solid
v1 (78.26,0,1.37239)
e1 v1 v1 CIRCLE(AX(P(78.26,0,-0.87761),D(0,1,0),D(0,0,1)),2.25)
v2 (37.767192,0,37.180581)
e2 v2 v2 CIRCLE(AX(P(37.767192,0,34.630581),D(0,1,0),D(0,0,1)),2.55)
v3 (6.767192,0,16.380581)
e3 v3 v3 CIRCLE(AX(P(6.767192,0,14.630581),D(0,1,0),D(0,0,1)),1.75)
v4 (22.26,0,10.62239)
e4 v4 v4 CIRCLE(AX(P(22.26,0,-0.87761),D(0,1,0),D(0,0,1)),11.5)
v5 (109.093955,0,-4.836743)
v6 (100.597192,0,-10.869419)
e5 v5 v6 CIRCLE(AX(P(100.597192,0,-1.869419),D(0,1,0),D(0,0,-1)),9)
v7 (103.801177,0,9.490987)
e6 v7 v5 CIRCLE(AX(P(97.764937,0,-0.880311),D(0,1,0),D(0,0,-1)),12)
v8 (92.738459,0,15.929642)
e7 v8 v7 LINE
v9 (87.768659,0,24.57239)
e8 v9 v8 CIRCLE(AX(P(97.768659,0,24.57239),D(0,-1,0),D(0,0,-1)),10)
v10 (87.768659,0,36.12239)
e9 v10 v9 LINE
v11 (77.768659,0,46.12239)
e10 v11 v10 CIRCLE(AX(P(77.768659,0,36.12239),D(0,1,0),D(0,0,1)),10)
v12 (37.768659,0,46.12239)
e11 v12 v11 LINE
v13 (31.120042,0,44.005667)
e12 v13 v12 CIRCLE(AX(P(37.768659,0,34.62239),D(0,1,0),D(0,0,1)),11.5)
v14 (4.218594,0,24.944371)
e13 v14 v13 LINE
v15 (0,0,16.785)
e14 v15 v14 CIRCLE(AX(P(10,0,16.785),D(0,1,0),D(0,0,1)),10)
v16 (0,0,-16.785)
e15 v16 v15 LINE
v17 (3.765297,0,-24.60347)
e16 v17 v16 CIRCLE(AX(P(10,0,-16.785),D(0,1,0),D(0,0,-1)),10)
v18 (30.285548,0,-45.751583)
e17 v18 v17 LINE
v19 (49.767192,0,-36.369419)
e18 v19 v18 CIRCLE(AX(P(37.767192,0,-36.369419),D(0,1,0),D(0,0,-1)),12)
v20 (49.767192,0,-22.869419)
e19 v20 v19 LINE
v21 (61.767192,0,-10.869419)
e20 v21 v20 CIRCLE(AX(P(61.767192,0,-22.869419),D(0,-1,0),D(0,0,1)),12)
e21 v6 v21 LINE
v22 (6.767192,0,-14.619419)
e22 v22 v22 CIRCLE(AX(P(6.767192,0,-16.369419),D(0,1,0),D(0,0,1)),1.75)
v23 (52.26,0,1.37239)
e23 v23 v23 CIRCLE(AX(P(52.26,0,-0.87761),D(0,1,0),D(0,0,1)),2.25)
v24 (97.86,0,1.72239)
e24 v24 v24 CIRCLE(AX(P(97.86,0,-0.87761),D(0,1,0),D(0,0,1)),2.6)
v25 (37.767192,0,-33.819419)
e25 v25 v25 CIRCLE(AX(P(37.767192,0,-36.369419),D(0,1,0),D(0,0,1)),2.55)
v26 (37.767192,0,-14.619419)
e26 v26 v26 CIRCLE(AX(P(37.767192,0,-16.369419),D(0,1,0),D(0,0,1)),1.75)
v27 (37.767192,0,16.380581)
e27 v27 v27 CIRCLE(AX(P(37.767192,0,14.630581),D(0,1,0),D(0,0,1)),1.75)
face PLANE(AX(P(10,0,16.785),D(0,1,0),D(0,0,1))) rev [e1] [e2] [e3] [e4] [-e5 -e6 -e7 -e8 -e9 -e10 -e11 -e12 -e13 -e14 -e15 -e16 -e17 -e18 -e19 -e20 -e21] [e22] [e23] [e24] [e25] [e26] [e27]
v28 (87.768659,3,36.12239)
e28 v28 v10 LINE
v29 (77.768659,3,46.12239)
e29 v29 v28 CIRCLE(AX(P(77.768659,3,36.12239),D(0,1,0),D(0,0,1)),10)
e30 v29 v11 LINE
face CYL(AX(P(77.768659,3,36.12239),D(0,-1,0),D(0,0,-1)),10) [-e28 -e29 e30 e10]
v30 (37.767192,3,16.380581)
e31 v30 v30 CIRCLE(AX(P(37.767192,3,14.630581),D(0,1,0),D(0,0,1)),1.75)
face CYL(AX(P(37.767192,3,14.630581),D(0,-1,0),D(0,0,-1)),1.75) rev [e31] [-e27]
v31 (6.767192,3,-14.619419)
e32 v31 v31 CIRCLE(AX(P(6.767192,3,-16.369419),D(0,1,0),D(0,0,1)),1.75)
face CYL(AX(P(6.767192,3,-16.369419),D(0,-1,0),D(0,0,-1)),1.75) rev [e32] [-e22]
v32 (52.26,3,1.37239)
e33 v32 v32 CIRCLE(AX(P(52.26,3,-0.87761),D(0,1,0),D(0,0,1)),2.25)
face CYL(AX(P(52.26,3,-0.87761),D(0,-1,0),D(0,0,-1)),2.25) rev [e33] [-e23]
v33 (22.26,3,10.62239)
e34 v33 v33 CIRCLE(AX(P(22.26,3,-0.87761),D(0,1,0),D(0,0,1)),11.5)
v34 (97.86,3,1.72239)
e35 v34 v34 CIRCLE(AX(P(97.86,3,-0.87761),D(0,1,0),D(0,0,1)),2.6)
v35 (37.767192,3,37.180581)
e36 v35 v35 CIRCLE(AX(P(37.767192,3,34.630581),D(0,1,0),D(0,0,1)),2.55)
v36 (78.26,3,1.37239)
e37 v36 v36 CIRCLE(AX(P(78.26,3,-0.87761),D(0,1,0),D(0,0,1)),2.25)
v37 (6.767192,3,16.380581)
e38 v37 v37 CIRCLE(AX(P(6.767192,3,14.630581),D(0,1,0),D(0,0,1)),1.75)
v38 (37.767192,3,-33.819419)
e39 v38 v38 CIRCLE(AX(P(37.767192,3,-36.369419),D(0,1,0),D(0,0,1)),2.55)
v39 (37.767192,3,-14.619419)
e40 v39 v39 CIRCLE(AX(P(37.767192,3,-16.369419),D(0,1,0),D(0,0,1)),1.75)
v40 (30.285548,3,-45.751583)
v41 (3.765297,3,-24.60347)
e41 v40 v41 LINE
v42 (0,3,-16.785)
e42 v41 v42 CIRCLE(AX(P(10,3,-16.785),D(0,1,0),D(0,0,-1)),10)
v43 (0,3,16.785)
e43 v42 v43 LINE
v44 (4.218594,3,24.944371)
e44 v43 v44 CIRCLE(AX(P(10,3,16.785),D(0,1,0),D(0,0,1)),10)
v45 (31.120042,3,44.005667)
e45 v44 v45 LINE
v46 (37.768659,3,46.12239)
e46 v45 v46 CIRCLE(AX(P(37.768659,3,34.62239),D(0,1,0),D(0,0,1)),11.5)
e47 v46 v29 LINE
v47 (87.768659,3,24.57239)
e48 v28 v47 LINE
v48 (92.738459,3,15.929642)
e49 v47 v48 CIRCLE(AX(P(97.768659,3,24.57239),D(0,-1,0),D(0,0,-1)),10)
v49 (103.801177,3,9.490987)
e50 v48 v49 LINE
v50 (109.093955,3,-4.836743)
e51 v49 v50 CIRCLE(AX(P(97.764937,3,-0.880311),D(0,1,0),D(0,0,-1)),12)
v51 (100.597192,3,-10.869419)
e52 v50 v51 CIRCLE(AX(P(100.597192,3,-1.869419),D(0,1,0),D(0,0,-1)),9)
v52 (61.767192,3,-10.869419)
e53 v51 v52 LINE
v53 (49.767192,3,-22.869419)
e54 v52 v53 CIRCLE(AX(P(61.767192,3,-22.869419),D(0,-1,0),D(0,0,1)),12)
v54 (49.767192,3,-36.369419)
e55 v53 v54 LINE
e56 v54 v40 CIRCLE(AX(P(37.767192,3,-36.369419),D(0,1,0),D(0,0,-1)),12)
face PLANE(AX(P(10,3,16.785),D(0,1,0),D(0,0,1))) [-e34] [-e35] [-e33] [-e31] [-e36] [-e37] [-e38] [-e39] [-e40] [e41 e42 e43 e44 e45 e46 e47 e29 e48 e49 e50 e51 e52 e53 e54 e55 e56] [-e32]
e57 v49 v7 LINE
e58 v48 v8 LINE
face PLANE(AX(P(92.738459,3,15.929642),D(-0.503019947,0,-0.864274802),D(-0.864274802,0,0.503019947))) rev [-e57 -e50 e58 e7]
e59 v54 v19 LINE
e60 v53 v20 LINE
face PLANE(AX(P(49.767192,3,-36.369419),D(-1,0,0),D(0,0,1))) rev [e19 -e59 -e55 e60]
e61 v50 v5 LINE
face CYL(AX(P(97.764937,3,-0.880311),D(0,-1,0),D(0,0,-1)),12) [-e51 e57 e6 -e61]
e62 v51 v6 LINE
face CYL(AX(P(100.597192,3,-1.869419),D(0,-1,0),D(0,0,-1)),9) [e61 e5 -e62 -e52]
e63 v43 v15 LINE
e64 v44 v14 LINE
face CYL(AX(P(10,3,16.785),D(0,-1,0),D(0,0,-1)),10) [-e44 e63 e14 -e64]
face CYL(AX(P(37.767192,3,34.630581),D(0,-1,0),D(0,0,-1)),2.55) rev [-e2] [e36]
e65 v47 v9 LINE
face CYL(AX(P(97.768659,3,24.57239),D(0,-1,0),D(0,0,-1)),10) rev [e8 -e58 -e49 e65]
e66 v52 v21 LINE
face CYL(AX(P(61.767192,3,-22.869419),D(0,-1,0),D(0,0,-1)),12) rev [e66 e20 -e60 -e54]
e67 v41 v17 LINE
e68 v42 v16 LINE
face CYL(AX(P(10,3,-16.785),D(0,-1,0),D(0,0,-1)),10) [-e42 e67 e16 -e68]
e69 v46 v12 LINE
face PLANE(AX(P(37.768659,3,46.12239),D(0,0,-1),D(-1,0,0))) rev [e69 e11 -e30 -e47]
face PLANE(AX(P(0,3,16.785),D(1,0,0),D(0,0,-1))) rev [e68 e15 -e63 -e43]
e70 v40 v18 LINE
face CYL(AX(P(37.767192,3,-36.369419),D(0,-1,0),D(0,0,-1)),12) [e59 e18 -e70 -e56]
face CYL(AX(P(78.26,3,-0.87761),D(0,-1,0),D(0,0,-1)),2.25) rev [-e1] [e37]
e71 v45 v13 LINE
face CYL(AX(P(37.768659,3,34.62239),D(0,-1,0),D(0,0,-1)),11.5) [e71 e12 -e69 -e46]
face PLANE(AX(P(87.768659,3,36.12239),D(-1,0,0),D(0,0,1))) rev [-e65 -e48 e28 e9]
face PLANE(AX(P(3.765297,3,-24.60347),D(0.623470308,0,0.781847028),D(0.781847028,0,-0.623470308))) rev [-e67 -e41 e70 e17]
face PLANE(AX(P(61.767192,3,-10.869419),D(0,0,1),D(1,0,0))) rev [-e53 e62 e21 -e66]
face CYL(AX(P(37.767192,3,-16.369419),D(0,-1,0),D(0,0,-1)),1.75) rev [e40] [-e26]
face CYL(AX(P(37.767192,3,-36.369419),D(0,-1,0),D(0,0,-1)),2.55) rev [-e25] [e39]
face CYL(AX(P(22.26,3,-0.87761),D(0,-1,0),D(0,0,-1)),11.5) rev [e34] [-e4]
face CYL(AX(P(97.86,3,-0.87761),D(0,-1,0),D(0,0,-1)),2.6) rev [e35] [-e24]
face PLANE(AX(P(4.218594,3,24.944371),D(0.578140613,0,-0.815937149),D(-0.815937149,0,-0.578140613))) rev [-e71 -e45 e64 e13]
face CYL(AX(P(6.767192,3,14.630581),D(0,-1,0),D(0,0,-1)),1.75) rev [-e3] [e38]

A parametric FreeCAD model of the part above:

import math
import FreeCAD as App
import Part
import Sketcher
Q = App.Units.Quantity

doc = App.newDocument("Part")
body = doc.addObject("PartDesign::Body", "Body")

sketch1 = body.newObject("Sketcher::SketchObject", "Sketch")
sketch1.AttachmentSupport = (doc.getObject("XZ_Plane"), [""])
sketch1.MapMode = "FlatFace"
sketch1.addGeometry([
    Part.LineSegment(App.Vector(0, -16.8, 0), App.Vector(0, 16.8, 0)),
    Part.ArcOfCircle(Part.Circle(App.Vector(10, 16.8, 0), App.Vector(0, 0, 1), 10), math.radians(125), math.radians(180)),
    Part.LineSegment(App.Vector(4.2, 24.9, 0), App.Vector(31.1, 44, 0)),
    Part.ArcOfCircle(Part.Circle(App.Vector(37.8, 34.6, 0), App.Vector(0, 0, 1), 11.5), math.radians(90), math.radians(125)),
    Part.LineSegment(App.Vector(37.8, 46.1, 0), App.Vector(77.8, 46.1, 0)),
    Part.ArcOfCircle(Part.Circle(App.Vector(77.8, 36.1, 0), App.Vector(0, 0, 1), 10), math.radians(0), math.radians(90)),
    Part.LineSegment(App.Vector(87.8, 36.1, 0), App.Vector(87.8, 24.6, 0)),
    Part.ArcOfCircle(Part.Circle(App.Vector(97.8, 24.6, 0), App.Vector(0, 0, 1), 10), math.radians(-180), math.radians(-120)),
    Part.LineSegment(App.Vector(92.7, 15.9, 0), App.Vector(103.8, 9.5, 0)),
    Part.ArcOfCircle(Part.Circle(App.Vector(97.8, -0.9, 0), App.Vector(0, 0, 1), 12), math.radians(-19), math.radians(60)),
    Part.ArcOfCircle(Part.Circle(App.Vector(100.6, -1.9, 0), App.Vector(0, 0, 1), 9), math.radians(-90), math.radians(-19)),
    Part.LineSegment(App.Vector(100.6, -10.9, 0), App.Vector(61.8, -10.9, 0)),
    Part.ArcOfCircle(Part.Circle(App.Vector(61.8, -22.9, 0), App.Vector(0, 0, 1), 12), math.radians(90), math.radians(180)),
    Part.LineSegment(App.Vector(49.8, -22.9, 0), App.Vector(49.8, -36.4, 0)),
    Part.ArcOfCircle(Part.Circle(App.Vector(37.8, -36.4, 0), App.Vector(0, 0, 1), 12), math.radians(-129), math.radians(0)),
    Part.LineSegment(App.Vector(30.3, -45.8, 0), App.Vector(3.8, -24.6, 0)),
    Part.ArcOfCircle(Part.Circle(App.Vector(10, -16.8, 0), App.Vector(0, 0, 1), 10), math.radians(180), math.radians(231)),
    Part.Circle(App.Vector(37.8, 34.6, 0), App.Vector(0, 0, 1), 2.5),
    Part.Circle(App.Vector(37.8, 14.6, 0), App.Vector(0, 0, 1), 1.8),
    Part.Circle(App.Vector(6.8, 14.6, 0), App.Vector(0, 0, 1), 1.8),
    Part.Circle(App.Vector(97.9, -0.9, 0), App.Vector(0, 0, 1), 2.6),
    Part.Circle(App.Vector(78.3, -0.9, 0), App.Vector(0, 0, 1), 2.2),
    Part.Circle(App.Vector(52.3, -0.9, 0), App.Vector(0, 0, 1), 2.2),
    Part.Circle(App.Vector(37.8, -16.4, 0), App.Vector(0, 0, 1), 1.8),
    Part.Circle(App.Vector(22.3, -0.9, 0), App.Vector(0, 0, 1), 11.5),
    Part.Circle(App.Vector(6.8, -16.4, 0), App.Vector(0, 0, 1), 1.8),
    Part.Circle(App.Vector(37.8, -36.4, 0), App.Vector(0, 0, 1), 2.5),
], False)
sketch1.addConstraint([
    Sketcher.Constraint("Tangent", 0, 2, 1, 2),
    Sketcher.Constraint("Tangent", 1, 1, 2, 1),
    Sketcher.Constraint("Tangent", 2, 2, 3, 2),
    Sketcher.Constraint("Tangent", 3, 1, 4, 1),
    Sketcher.Constraint("Tangent", 4, 2, 5, 2),
    Sketcher.Constraint("Tangent", 5, 1, 6, 1),
    Sketcher.Constraint("Tangent", 6, 2, 7, 1),
    Sketcher.Constraint("Tangent", 7, 2, 8, 1),
    Sketcher.Constraint("Tangent", 8, 2, 9, 2),
    Sketcher.Constraint("Tangent", 9, 1, 10, 2),
    Sketcher.Constraint("Tangent", 10, 1, 11, 1),
    Sketcher.Constraint("Tangent", 11, 2, 12, 1),
    Sketcher.Constraint("Tangent", 12, 2, 13, 1),
    Sketcher.Constraint("Tangent", 13, 2, 14, 2),
    Sketcher.Constraint("Tangent", 14, 1, 15, 1),
    Sketcher.Constraint("Tangent", 15, 2, 16, 2),
    Sketcher.Constraint("Tangent", 16, 1, 0, 1),
    Sketcher.Constraint("Vertical", 0),
    Sketcher.Constraint("Horizontal", 4),
    Sketcher.Constraint("Vertical", 6),
    Sketcher.Constraint("Horizontal", 11),
    Sketcher.Constraint("Vertical", 13),
    Sketcher.Constraint("Coincident", 26, 3, 14, 3),
    Sketcher.Constraint("Equal", 1, 5),
    Sketcher.Constraint("Equal", 5, 7),
    Sketcher.Constraint("Equal", 9, 12),
    Sketcher.Constraint("Equal", 12, 14),
    Sketcher.Constraint("Equal", 7, 16),
    Sketcher.Constraint("Equal", 18, 19),
    Sketcher.Constraint("Equal", 21, 22),
    Sketcher.Constraint("Equal", 19, 23),
    Sketcher.Constraint("Equal", 3, 24),
    Sketcher.Constraint("Equal", 23, 25),
    Sketcher.Constraint("Equal", 17, 26),
    Sketcher.Constraint("Symmetric", 0, 2, 16, 1, -1, 1),
    Sketcher.Constraint("Horizontal", 18, 3, 19, 3),
    Sketcher.Constraint("Horizontal", 20, 3, 21, 3),
    Sketcher.Constraint("Horizontal", 21, 3, 22, 3),
    Sketcher.Constraint("Horizontal", 22, 3, 24, 3),
    Sketcher.Constraint("Horizontal", 23, 3, 25, 3),
    Sketcher.Constraint("Vertical", 14, 3, 17, 3),
    Sketcher.Constraint("Vertical", 17, 3, 18, 3),
    Sketcher.Constraint("Vertical", 18, 3, 23, 3),
    Sketcher.Constraint("Vertical", 19, 3, 25, 3),
    Sketcher.Constraint("Diameter", 24, 23.0),
    Sketcher.Constraint("Radius", 1, 10.0),
    Sketcher.Constraint("Radius", 9, 12.0),
    Sketcher.Constraint("Radius", 10, 9.0),
    Sketcher.Constraint("Diameter", 17, 5.1),
    Sketcher.Constraint("Diameter", 18, 3.5),
    Sketcher.Constraint("Diameter", 20, 5.2),
    Sketcher.Constraint("Diameter", 21, 4.5),
    Sketcher.Constraint("DistanceX", 4, 1, 4, 2, 40.0),
    Sketcher.Constraint("DistanceY", 13, 2, 13, 1, 13.5),
    Sketcher.Constraint("Angle", 8, Q("-30.2 deg")),
    Sketcher.Constraint("DistanceY", 18, 3, 17, 3, 20.0),
    Sketcher.Constraint("DistanceX", 19, 3, 18, 3, 31.0),
    Sketcher.Constraint("DistanceY", 20, 3, 5, 3, 37.0),
    Sketcher.Constraint("DistanceX", 22, 3, 21, 3, 26.0),
    Sketcher.Constraint("DistanceY", 14, 3, 23, 3, 20.0),
    Sketcher.Constraint("DistanceY", 23, 3, 18, 3, 31.0),
    Sketcher.Constraint("Distance", 8, 12.8),
    Sketcher.Constraint("DistanceX", 11, 2, 11, 1, 38.83),
    Sketcher.Constraint("DistanceY", 0, 1, 0, 2, 33.57),
    Sketcher.Constraint("DistanceY", 6, 2, 6, 1, 11.55),
    Sketcher.Constraint("Angle", 15, Q("141.43 deg")),
    Sketcher.Constraint("DistanceX", 21, 3, 20, 3, 19.6),
    Sketcher.Constraint("Distance", 2, 32.97),
    Sketcher.Constraint("Distance", 15, 33.92),
    Sketcher.Constraint("DistanceX", -1, 1, 20, 3, 97.86),
    Sketcher.Constraint("DistanceX", -1, 1, 24, 3, 22.26),
])
pad1 = body.newObject("PartDesign::Pad", "Pad")
pad1.Profile = sketch1
pad1.Length = 3
pad1.Reversed = True

doc.recompute()
